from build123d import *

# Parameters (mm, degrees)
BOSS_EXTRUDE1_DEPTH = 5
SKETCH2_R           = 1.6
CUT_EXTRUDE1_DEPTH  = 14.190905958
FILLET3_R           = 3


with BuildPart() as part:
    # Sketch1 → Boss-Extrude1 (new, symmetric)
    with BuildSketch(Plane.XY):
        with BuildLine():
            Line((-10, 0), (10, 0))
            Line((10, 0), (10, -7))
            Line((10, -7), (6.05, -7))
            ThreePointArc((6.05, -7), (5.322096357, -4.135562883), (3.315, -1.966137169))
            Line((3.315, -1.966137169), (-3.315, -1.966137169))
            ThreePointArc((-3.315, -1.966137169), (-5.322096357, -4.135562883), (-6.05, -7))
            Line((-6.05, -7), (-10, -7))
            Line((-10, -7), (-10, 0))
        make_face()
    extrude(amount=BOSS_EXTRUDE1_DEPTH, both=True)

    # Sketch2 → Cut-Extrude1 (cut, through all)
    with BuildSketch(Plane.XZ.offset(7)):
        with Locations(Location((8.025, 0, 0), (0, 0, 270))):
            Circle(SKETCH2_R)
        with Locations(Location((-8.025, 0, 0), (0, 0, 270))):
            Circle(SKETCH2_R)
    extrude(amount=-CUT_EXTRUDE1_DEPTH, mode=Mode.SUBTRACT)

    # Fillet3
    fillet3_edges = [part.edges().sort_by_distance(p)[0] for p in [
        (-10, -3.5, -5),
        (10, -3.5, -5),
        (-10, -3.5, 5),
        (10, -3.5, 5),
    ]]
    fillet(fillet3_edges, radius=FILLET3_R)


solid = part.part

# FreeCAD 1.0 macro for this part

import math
import FreeCAD as App
import Part
import Sketcher


def edges_at(feature, points):
    """Names of the edges that pass closest to the given points."""
    edges = feature.Shape.Edges
    near = lambda p: min(range(len(edges)), key=lambda i: edges[i].distToShape(Part.Vertex(*p))[0])
    return sorted({f"Edge{near(p) + 1}" for p in points})

doc = App.newDocument("Part")
body = doc.addObject("PartDesign::Body", "Body")

sketch1 = doc.addObject("Sketcher::SketchObject", "Sketch")
body.addObject(sketch1)
sketch1.AttachmentSupport = (doc.XY_Plane, [""])
sketch1.MapMode = "FlatFace"
sketch1.addGeometry([
    Part.LineSegment(App.Vector(10, 0, 0), App.Vector(-10, 0, 0)),
    Part.LineSegment(App.Vector(-10, 0, 0), App.Vector(-10, -7, 0)),
    Part.LineSegment(App.Vector(-10, -7, 0), App.Vector(-6.05, -7, 0)),
    Part.ArcOfCircle(Part.Circle(App.Vector(-0.05, -7, 0), App.Vector(0, 0, 1), 6), math.radians(122.967735), math.radians(180)),
    Part.LineSegment(App.Vector(-3.315, -1.966137, 0), App.Vector(3.315, -1.966137, 0)),
    Part.ArcOfCircle(Part.Circle(App.Vector(0.05, -7, 0), App.Vector(0, 0, 1), 6), math.radians(0), math.radians(57.032265)),
    Part.LineSegment(App.Vector(6.05, -7, 0), App.Vector(10, -7, 0)),
    Part.LineSegment(App.Vector(10, -7, 0), App.Vector(10, 0, 0)),
], False)
sketch1.addConstraint([
    Sketcher.Constraint("Coincident", 0, 2, 1, 1),
    Sketcher.Constraint("Coincident", 1, 2, 2, 1),
    Sketcher.Constraint("Coincident", 2, 2, 3, 2),
    Sketcher.Constraint("Coincident", 3, 1, 4, 1),
    Sketcher.Constraint("Coincident", 4, 2, 5, 2),
    Sketcher.Constraint("Coincident", 5, 1, 6, 1),
    Sketcher.Constraint("Coincident", 6, 2, 7, 1),
    Sketcher.Constraint("Coincident", 7, 2, 0, 1),
    Sketcher.Constraint("Horizontal", 0),
    Sketcher.Constraint("Vertical", 1),
    Sketcher.Constraint("Horizontal", 2),
    Sketcher.Constraint("Horizontal", 4),
    Sketcher.Constraint("Horizontal", 6),
    Sketcher.Constraint("Vertical", 7),
    Sketcher.Constraint("Equal", 3, 5),
    Sketcher.Constraint("Symmetric", 0, 2, 7, 2, -1, 1),
    Sketcher.Constraint("Symmetric", 3, 3, 5, 3, -2),
    Sketcher.Constraint("Horizontal", 5, 3, 1, 2),
    Sketcher.Constraint("Horizontal", 2, 2, 5, 1),
    Sketcher.Constraint("Radius", 3, 6.0),
    Sketcher.Constraint("DistanceX", 0, 2, 0, 1, 20.0),
    Sketcher.Constraint("DistanceY", 1, 2, 1, 1, 7.0),
    Sketcher.Constraint("DistanceX", 2, 1, 2, 2, 3.95),
    Sketcher.Constraint("DistanceX", 4, 1, 4, 2, 6.63),
])
pad1 = doc.addObject("PartDesign::Pad", "Pad")
body.addObject(pad1)
pad1.Profile = sketch1
pad1.Length = 10
pad1.Midplane = True

sketch2 = doc.addObject("Sketcher::SketchObject", "Sketch001")
body.addObject(sketch2)
sketch2.AttachmentSupport = (doc.XZ_Plane, [""])
sketch2.MapMode = "FlatFace"
sketch2.AttachmentOffset = App.Placement(App.Vector(0, 0, 7), App.Rotation())
sketch2.addGeometry([
    Part.Circle(App.Vector(8.025, 0, 0), App.Vector(0, 0, 1), 1.6),
    Part.Circle(App.Vector(-8.025, 0, 0), App.Vector(0, 0, 1), 1.6),
], False)
sketch2.addConstraint([
    Sketcher.Constraint("Equal", 0, 1),
    Sketcher.Constraint("Symmetric", 0, 3, 1, 3, -1, 1),
    Sketcher.Constraint("PointOnObject", 0, 3, -1),
    Sketcher.Constraint("Diameter", 0, 3.2),
    Sketcher.Constraint("DistanceX", 1, 3, 0, 3, 16.05),
])
pocket1 = doc.addObject("PartDesign::Pocket", "Pocket")
body.addObject(pocket1)
pocket1.Profile = sketch2
pocket1.Type = "ThroughAll"
doc.recompute()

fillet = doc.addObject("PartDesign::Fillet", "Fillet")
body.addObject(fillet)
fillet.Base = (pocket1, edges_at(pocket1, [
    (-10, -3.5, -5),
    (10, -3.5, -5),
    (-10, -3.5, 5),
    (10, -3.5, 5),
]))
fillet.Radius = 3

doc.recompute()
